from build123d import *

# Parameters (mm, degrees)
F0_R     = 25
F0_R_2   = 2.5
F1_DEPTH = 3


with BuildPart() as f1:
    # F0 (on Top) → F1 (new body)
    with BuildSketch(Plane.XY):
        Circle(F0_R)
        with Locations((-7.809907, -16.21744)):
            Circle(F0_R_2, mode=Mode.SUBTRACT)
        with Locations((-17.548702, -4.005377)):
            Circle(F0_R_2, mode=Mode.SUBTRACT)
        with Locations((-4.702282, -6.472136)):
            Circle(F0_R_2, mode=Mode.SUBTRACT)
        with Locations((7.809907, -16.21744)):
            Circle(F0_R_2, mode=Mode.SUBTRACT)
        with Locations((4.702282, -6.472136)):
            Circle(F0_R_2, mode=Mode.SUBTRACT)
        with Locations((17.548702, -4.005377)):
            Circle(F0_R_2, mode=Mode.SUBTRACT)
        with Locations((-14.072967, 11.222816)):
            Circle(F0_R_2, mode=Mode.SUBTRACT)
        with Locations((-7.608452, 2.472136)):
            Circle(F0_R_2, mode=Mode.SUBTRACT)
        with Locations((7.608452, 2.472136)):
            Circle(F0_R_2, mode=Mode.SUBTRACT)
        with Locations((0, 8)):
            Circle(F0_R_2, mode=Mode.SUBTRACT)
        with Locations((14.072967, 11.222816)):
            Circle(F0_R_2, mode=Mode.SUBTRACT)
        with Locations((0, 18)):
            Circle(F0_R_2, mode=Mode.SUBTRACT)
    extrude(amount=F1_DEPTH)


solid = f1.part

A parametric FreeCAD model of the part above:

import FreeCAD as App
import Part
import Sketcher

V = App.Vector

doc = App.newDocument("Part")
body = doc.addObject("PartDesign::Body", "Body")

# Sketch on XY plane
sketch1 = doc.addObject("Sketcher::SketchObject", "Sketch")
body.addObject(sketch1)
sketch1.AttachmentSupport = (doc.XY_Plane, [""])
sketch1.MapMode = "FlatFace"
sketch1.addGeometry([
    Part.Circle(V(0, 0, 0), V(0, 0, 1), 25),  # 0
    Part.Circle(V(-7.8, -16.2, 0), V(0, 0, 1), 2.5),  # 1
    Part.Circle(V(-17.5, -4, 0), V(0, 0, 1), 2.5),  # 2
    Part.Circle(V(-4.7, -6.5, 0), V(0, 0, 1), 2.5),  # 3
    Part.Circle(V(7.8, -16.2, 0), V(0, 0, 1), 2.5),  # 4
    Part.Circle(V(4.7, -6.5, 0), V(0, 0, 1), 2.5),  # 5
    Part.Circle(V(17.5, -4, 0), V(0, 0, 1), 2.5),  # 6
    Part.Circle(V(-7.6, 2.5, 0), V(0, 0, 1), 2.5),  # 7
    Part.Circle(V(-14.1, 11.2, 0), V(0, 0, 1), 2.5),  # 8
    Part.Circle(V(7.6, 2.5, 0), V(0, 0, 1), 2.5),  # 9
    Part.Circle(V(0, 8, 0), V(0, 0, 1), 2.5),  # 10
    Part.Circle(V(0, 18, 0), V(0, 0, 1), 2.5),  # 11
    Part.Circle(V(14.1, 11.2, 0), V(0, 0, 1), 2.5),  # 12
], False)
sketch1.addConstraint([
    Sketcher.Constraint("Coincident", 0, 3, -1, 1),
    Sketcher.Constraint("Equal", 1, 2),
    Sketcher.Constraint("Equal", 2, 3),
    Sketcher.Constraint("Equal", 3, 4),
    Sketcher.Constraint("Equal", 4, 5),
    Sketcher.Constraint("Equal", 5, 6),
    Sketcher.Constraint("Equal", 6, 7),
    Sketcher.Constraint("Equal", 7, 8),
    Sketcher.Constraint("Equal", 8, 9),
    Sketcher.Constraint("Equal", 9, 10),
    Sketcher.Constraint("Equal", 10, 11),
    Sketcher.Constraint("Equal", 11, 12),
    Sketcher.Constraint("Symmetric", 1, 3, 4, 3, -2),
    Sketcher.Constraint("Symmetric", 3, 3, 5, 3, -2),
    Sketcher.Constraint("Symmetric", 2, 3, 6, 3, -2),
    Sketcher.Constraint("Symmetric", 7, 3, 9, 3, -2),
    Sketcher.Constraint("Symmetric", 8, 3, 12, 3, -2),
    Sketcher.Constraint("PointOnObject", 10, 3, -2),
    Sketcher.Constraint("PointOnObject", 11, 3, -2),
    Sketcher.Constraint("Diameter", 0, 50.0),
    Sketcher.Constraint("Diameter", 1, 5.0),
    Sketcher.Constraint("DistanceY", -1, 1, 10, 3, 8.0),
    Sketcher.Constraint("DistanceY", -1, 1, 11, 3, 18.0),
    Sketcher.Constraint("DistanceX", 2, 3, -1, 1, 17.548702),
    Sketcher.Constraint("DistanceY", 1, 3, -1, 1, 16.21744),
    Sketcher.Constraint("DistanceX", 7, 3, -1, 1, 7.608452),
    Sketcher.Constraint("DistanceX", 2, 3, 3, 3, 12.84642),
    Sketcher.Constraint("DistanceY", 3, 3, 2, 3, 2.466759),
    Sketcher.Constraint("DistanceX", 3, 3, 4, 3, 12.512189),
    Sketcher.Constraint("DistanceY", 7, 3, 8, 3, 8.75068),
    Sketcher.Constraint("DistanceX", 8, 3, 5, 3, 18.775249),
    Sketcher.Constraint("DistanceY", 2, 3, -1, 1, 4.005377),
    Sketcher.Constraint("DistanceY", -1, 1, 7, 3, 2.472136),
])
pad1 = doc.addObject("PartDesign::Pad", "Pad")
body.addObject(pad1)
pad1.Profile = sketch1
pad1.Length = 3

doc.recompute()
